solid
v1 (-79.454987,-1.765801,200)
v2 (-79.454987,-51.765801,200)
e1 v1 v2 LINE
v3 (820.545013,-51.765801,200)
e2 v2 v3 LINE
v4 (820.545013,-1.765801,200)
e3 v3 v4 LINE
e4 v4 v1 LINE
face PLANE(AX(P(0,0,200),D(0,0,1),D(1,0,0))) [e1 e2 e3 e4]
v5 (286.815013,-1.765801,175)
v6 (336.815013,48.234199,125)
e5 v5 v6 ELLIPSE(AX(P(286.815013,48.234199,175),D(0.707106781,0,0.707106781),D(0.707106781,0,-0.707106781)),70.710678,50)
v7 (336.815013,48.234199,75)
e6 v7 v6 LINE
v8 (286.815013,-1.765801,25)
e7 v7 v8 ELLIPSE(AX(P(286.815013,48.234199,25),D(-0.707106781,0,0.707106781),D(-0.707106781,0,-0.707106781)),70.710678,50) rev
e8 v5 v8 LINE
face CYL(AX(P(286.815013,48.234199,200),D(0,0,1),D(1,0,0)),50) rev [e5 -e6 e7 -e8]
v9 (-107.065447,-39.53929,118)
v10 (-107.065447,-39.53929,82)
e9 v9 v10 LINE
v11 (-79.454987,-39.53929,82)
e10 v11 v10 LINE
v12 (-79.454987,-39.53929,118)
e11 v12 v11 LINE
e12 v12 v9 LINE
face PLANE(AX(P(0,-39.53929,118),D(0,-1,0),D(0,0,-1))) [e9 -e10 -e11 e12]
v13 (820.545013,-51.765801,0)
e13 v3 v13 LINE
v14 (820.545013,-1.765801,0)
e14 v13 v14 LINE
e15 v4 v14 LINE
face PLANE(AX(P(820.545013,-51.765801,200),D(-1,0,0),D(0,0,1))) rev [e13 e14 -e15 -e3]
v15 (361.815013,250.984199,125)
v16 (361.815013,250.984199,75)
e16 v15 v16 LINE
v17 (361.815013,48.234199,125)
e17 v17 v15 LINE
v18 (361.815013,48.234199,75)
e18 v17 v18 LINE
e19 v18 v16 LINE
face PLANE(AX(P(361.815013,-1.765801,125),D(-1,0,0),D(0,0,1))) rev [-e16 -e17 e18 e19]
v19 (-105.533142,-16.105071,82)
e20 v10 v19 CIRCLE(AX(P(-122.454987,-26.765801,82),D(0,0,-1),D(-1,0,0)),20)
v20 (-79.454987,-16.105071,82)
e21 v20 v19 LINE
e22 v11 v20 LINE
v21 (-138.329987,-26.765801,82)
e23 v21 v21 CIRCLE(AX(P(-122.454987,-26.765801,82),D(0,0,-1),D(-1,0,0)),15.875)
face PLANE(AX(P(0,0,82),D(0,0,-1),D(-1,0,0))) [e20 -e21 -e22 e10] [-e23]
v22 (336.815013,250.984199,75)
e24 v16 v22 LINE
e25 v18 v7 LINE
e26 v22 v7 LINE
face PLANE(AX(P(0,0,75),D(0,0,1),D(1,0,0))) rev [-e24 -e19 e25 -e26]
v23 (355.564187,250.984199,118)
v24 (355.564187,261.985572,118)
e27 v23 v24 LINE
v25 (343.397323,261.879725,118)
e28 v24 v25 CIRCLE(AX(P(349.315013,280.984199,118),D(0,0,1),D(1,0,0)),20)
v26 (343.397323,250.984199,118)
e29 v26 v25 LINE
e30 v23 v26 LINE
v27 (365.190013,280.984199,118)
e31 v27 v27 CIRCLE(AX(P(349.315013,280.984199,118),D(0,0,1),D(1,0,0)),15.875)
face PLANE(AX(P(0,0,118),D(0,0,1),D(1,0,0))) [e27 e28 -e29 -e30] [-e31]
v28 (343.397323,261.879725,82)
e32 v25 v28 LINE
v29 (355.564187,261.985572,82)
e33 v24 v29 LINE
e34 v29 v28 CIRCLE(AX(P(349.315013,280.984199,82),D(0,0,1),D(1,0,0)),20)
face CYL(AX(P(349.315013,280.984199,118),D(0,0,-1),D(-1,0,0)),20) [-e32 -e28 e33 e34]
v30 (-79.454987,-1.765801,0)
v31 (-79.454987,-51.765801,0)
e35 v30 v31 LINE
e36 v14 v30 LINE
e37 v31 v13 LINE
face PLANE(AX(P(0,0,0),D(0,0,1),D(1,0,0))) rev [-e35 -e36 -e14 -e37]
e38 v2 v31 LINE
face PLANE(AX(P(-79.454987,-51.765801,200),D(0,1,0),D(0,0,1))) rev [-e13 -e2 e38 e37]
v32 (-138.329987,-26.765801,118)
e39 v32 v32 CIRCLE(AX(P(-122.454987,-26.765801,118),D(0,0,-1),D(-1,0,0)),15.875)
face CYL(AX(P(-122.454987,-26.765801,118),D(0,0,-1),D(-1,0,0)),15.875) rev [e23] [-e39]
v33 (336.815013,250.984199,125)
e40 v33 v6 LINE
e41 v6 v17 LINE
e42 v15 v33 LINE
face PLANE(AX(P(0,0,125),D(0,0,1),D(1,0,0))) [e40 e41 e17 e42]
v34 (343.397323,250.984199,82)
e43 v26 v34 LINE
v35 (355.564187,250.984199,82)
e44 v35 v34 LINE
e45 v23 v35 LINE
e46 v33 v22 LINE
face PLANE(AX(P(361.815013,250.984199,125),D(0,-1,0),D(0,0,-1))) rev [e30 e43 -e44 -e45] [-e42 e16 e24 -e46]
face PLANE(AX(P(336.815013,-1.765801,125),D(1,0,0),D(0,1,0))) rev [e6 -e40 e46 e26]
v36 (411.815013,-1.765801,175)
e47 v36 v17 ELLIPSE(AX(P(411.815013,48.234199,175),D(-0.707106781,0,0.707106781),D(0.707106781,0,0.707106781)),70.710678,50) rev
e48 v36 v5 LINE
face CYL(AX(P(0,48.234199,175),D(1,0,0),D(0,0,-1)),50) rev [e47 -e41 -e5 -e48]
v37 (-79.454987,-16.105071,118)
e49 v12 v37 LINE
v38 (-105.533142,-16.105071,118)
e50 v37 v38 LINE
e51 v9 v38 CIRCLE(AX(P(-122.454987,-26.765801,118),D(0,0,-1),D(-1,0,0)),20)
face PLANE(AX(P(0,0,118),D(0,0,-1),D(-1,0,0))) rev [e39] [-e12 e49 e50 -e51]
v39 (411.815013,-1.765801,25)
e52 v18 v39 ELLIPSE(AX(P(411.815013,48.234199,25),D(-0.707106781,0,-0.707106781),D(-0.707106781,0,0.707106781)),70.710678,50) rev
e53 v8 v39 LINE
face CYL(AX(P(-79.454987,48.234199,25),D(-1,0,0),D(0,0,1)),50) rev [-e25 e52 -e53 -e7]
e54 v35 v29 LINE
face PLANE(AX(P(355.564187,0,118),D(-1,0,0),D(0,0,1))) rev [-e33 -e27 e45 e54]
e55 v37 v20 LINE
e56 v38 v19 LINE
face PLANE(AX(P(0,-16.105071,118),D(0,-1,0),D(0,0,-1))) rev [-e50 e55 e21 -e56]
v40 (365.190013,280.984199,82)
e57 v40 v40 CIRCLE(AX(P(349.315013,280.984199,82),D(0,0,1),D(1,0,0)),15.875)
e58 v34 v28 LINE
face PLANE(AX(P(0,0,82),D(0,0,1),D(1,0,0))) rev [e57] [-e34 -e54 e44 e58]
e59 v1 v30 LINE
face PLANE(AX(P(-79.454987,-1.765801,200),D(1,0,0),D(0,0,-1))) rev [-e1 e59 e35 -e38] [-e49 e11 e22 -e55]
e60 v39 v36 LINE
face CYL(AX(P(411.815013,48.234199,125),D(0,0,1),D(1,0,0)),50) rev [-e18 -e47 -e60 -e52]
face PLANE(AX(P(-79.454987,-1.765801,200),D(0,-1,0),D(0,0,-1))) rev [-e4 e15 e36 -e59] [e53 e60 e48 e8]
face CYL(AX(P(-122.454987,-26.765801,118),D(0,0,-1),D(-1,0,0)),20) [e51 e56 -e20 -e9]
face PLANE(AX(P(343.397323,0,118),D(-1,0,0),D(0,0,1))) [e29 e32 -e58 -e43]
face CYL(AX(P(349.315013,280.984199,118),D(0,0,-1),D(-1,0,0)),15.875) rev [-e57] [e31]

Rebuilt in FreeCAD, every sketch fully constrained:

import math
import FreeCAD as App
import Part
import Sketcher
from FreeCAD import Vector
Q = App.Units.Quantity


def edges_at(feature, points):
    """Names of the edges that pass closest to the given points."""
    edges = feature.Shape.Edges
    near = lambda p: min(range(len(edges)), key=lambda i: edges[i].distToShape(Part.Vertex(*p))[0])
    return sorted({f"Edge{near(p) + 1}" for p in points})

doc = App.newDocument("Part")
params = doc.addObject("Spreadsheet::Sheet", "Params")
for row, (alias, value) in enumerate([
    ("sketch1_width", "900 mm"),
    ("sketch1_height", "50 mm"),
    ("pad1_length", "200 mm"),
    ("sketch2_radius", "20 mm"),
    ("sketch2_diameter", "31.75 mm"),
    ("pad2_length", "36 mm"),
    ("sketch3_width", "25 mm"),
    ("sketch3_height", "252.75 mm"),
    ("pad3_length", "50 mm"),
    ("fillet_radius", "50 mm"),
    ("sketch4_radius", "20 mm"),
    ("sketch4_diameter", "31.75 mm"),
    ("pad4_length", "36 mm"),
], start=1):
    params.set(f"A{row}", alias)
    params.set(f"B{row}", "=" + value)
    params.setAlias(f"B{row}", alias)

body = doc.addObject("PartDesign::Body", "Body")

# Sketch on XY plane
sketch1 = doc.addObject("Sketcher::SketchObject", "Sketch")
body.addObject(sketch1)
sketch1.AttachmentSupport = (doc.XY_Plane, [""])
sketch1.MapMode = "FlatFace"
sketch1.addGeometry(Part.LineSegment(Vector(-79.454987, -1.765801, 0), Vector(-79.454987, -51.765801, 0)), False)
sketch1.addGeometry(Part.LineSegment(Vector(-79.454987, -51.765801, 0), Vector(820.545013, -51.765801, 0)), False)
sketch1.addGeometry(Part.LineSegment(Vector(820.545013, -51.765801, 0), Vector(820.545013, -1.765801, 0)), False)
sketch1.addGeometry(Part.LineSegment(Vector(820.545013, -1.765801, 0), Vector(-79.454987, -1.765801, 0)), False)
sketch1.addConstraint(Sketcher.Constraint("Coincident", 0, 2, 1, 1))
sketch1.addConstraint(Sketcher.Constraint("Coincident", 1, 2, 2, 1))
sketch1.addConstraint(Sketcher.Constraint("Coincident", 2, 2, 3, 1))
sketch1.addConstraint(Sketcher.Constraint("Coincident", 3, 2, 0, 1))
sketch1.addConstraint(Sketcher.Constraint("Vertical", 0))
sketch1.addConstraint(Sketcher.Constraint("Horizontal", 1))
sketch1.addConstraint(Sketcher.Constraint("Vertical", 2))
sketch1.addConstraint(Sketcher.Constraint("Horizontal", 3))
sketch1.addConstraint(Sketcher.Constraint("DistanceX", 1, 1, 1, 2, Q("900 mm")))
sketch1.addConstraint(Sketcher.Constraint("DistanceY", 0, 2, 0, 1, Q("50 mm")))
sketch1.addConstraint(Sketcher.Constraint("DistanceY", 0, 2, -1, 1, Q("51.765801 mm")))
sketch1.addConstraint(Sketcher.Constraint("DistanceX", 0, 2, -1, 1, Q("79.454987 mm")))
sketch1.setExpression("Constraints[8]", "Params.sketch1_width")
sketch1.setExpression("Constraints[9]", "Params.sketch1_height")
pad1 = doc.addObject("PartDesign::Pad", "Pad")
body.addObject(pad1)
pad1.Profile = sketch1
pad1.setExpression("Length", "Params.pad1_length")

# Sketch on XY plane
sketch2 = doc.addObject("Sketcher::SketchObject", "Sketch001")
body.addObject(sketch2)
sketch2.AttachmentSupport = (doc.XY_Plane, [""])
sketch2.MapMode = "FlatFace"
sketch2.AttachmentOffset = App.Placement(Vector(0, 0, 82), App.Rotation())
sketch2.addGeometry(Part.LineSegment(Vector(-79.454987, -16.105071, 0), Vector(-79.454987, -39.53929, 0)), False)
sketch2.addGeometry(Part.LineSegment(Vector(-79.454987, -39.53929, 0), Vector(-107.065447, -39.53929, 0)), False)
sketch2.addGeometry(Part.ArcOfCircle(Part.Circle(Vector(-122.454987, -26.765801, 0), Vector(0, 0, 1), 20), math.radians(32.210848), math.radians(320.306951)), False)
sketch2.addGeometry(Part.LineSegment(Vector(-105.533142, -16.105071, 0), Vector(-79.454987, -16.105071, 0)), False)
sketch2.addGeometry(Part.Circle(Vector(-122.454987, -26.765801, 0), Vector(0, 0, 1), 15.875), False)
sketch2.addConstraint(Sketcher.Constraint("Coincident", 0, 2, 1, 1))
sketch2.addConstraint(Sketcher.Constraint("Coincident", 1, 2, 2, 2))
sketch2.addConstraint(Sketcher.Constraint("Coincident", 2, 1, 3, 1))
sketch2.addConstraint(Sketcher.Constraint("Coincident", 3, 2, 0, 1))
sketch2.addConstraint(Sketcher.Constraint("Vertical", 0))
sketch2.addConstraint(Sketcher.Constraint("Horizontal", 1))
sketch2.addConstraint(Sketcher.Constraint("Horizontal", 3))
sketch2.addConstraint(Sketcher.Constraint("Coincident", 4, 3, 2, 3))
sketch2.addConstraint(Sketcher.Constraint("Radius", 2, Q("20 mm")))
sketch2.addConstraint(Sketcher.Constraint("Diameter", 4, Q("31.75 mm")))
sketch2.addConstraint(Sketcher.Constraint("DistanceX", 2, 3, 0, 2, Q("43 mm")))
sketch2.addConstraint(Sketcher.Constraint("DistanceX", 1, 2, 1, 1, Q("27.610459 mm")))
sketch2.addConstraint(Sketcher.Constraint("DistanceY", 0, 2, 0, 1, Q("23.434219 mm")))
sketch2.addConstraint(Sketcher.Constraint("DistanceY", 2, 3, -1, 1, Q("26.765801 mm")))
sketch2.addConstraint(Sketcher.Constraint("DistanceX", 2, 3, -1, 1, Q("122.454987 mm")))
sketch2.setExpression("Constraints[8]", "Params.sketch2_radius")
sketch2.setExpression("Constraints[9]", "Params.sketch2_diameter")
pad2 = doc.addObject("PartDesign::Pad", "Pad001")
body.addObject(pad2)
pad2.Profile = sketch2
pad2.setExpression("Length", "Params.pad2_length")

# Sketch on XY plane
sketch3 = doc.addObject("Sketcher::SketchObject", "Sketch002")
body.addObject(sketch3)
sketch3.AttachmentSupport = (doc.XY_Plane, [""])
sketch3.MapMode = "FlatFace"
sketch3.AttachmentOffset = App.Placement(Vector(0, 0, 100), App.Rotation())
sketch3.addGeometry(Part.LineSegment(Vector(336.815013, 250.984199, 0), Vector(336.815013, -1.765801, 0)), False)
sketch3.addGeometry(Part.LineSegment(Vector(336.815013, -1.765801, 0), Vector(361.815013, -1.765801, 0)), False)
sketch3.addGeometry(Part.LineSegment(Vector(361.815013, -1.765801, 0), Vector(361.815013, 250.984199, 0)), False)
sketch3.addGeometry(Part.LineSegment(Vector(361.815013, 250.984199, 0), Vector(336.815013, 250.984199, 0)), False)
sketch3.addConstraint(Sketcher.Constraint("Coincident", 0, 2, 1, 1))
sketch3.addConstraint(Sketcher.Constraint("Coincident", 1, 2, 2, 1))
sketch3.addConstraint(Sketcher.Constraint("Coincident", 2, 2, 3, 1))
sketch3.addConstraint(Sketcher.Constraint("Coincident", 3, 2, 0, 1))
sketch3.addConstraint(Sketcher.Constraint("Vertical", 0))
sketch3.addConstraint(Sketcher.Constraint("Horizontal", 1))
sketch3.addConstraint(Sketcher.Constraint("Vertical", 2))
sketch3.addConstraint(Sketcher.Constraint("Horizontal", 3))
sketch3.addConstraint(Sketcher.Constraint("DistanceX", 1, 1, 1, 2, Q("25 mm")))
sketch3.addConstraint(Sketcher.Constraint("DistanceY", 0, 2, 0, 1, Q("252.75 mm")))
sketch3.addConstraint(Sketcher.Constraint("DistanceY", 0, 2, -1, 1, Q("1.765801 mm")))
sketch3.addConstraint(Sketcher.Constraint("DistanceX", -1, 1, 0, 2, Q("336.815013 mm")))
sketch3.setExpression("Constraints[8]", "Params.sketch3_width")
sketch3.setExpression("Constraints[9]", "Params.sketch3_height")
pad3 = doc.addObject("PartDesign::Pad", "Pad002")
body.addObject(pad3)
pad3.Profile = sketch3
pad3.setExpression("Length", "Params.pad3_length")
pad3.Midplane = True
doc.recompute()

fillet = doc.addObject("PartDesign::Fillet", "Fillet")
body.addObject(fillet)
fillet.Base = (pad3, edges_at(pad3, [
    (349.315, -1.766, 75),
    (336.815, -1.766, 100),
    (361.815, -1.766, 100),
    (349.315, -1.766, 125),
]))
fillet.setExpression("Radius", "Params.fillet_radius")

# Sketch on XY plane
sketch4 = doc.addObject("Sketcher::SketchObject", "Sketch003")
body.addObject(sketch4)
sketch4.AttachmentSupport = (doc.XY_Plane, [""])
sketch4.MapMode = "FlatFace"
sketch4.AttachmentOffset = App.Placement(Vector(0, 0, 100), App.Rotation())
sketch4.addGeometry(Part.LineSegment(Vector(343.397323, 250.984199, 0), Vector(355.564187, 250.984199, 0)), False)
sketch4.addGeometry(Part.LineSegment(Vector(355.564187, 250.984199, 0), Vector(355.564187, 261.985572, 0)), False)
sketch4.addGeometry(Part.ArcOfCircle(Part.Circle(Vector(349.315013, 280.984199, 0), Vector(0, 0, 1), 20), math.radians(-71.792533), math.radians(252.789417)), False)
sketch4.addGeometry(Part.LineSegment(Vector(343.397323, 261.879725, 0), Vector(343.397323, 250.984199, 0)), False)
sketch4.addGeometry(Part.Circle(Vector(349.315013, 280.984199, 0), Vector(0, 0, 1), 15.875), False)
sketch4.addConstraint(Sketcher.Constraint("Coincident", 0, 2, 1, 1))
sketch4.addConstraint(Sketcher.Constraint("Coincident", 1, 2, 2, 1))
sketch4.addConstraint(Sketcher.Constraint("Coincident", 2, 2, 3, 1))
sketch4.addConstraint(Sketcher.Constraint("Coincident", 3, 2, 0, 1))
sketch4.addConstraint(Sketcher.Constraint("Horizontal", 0))
sketch4.addConstraint(Sketcher.Constraint("Vertical", 1))
sketch4.addConstraint(Sketcher.Constraint("Vertical", 3))
sketch4.addConstraint(Sketcher.Constraint("Coincident", 4, 3, 2, 3))
sketch4.addConstraint(Sketcher.Constraint("Radius", 2, Q("20 mm")))
sketch4.addConstraint(Sketcher.Constraint("Diameter", 4, Q("31.75 mm")))
sketch4.addConstraint(Sketcher.Constraint("DistanceY", 0, 2, 2, 3, Q("30 mm")))
sketch4.addConstraint(Sketcher.Constraint("DistanceY", -1, 1, 2, 3, Q("280.984199 mm")))
sketch4.addConstraint(Sketcher.Constraint("DistanceX", 0, 1, 0, 2, Q("12.166864 mm")))
sketch4.addConstraint(Sketcher.Constraint("DistanceY", 1, 1, 1, 2, Q("11.001373 mm")))
sketch4.addConstraint(Sketcher.Constraint("DistanceX", -1, 1, 2, 3, Q("349.315013 mm")))
sketch4.setExpression("Constraints[8]", "Params.sketch4_radius")
sketch4.setExpression("Constraints[9]", "Params.sketch4_diameter")
pad4 = doc.addObject("PartDesign::Pad", "Pad003")
body.addObject(pad4)
pad4.Profile = sketch4
pad4.setExpression("Length", "Params.pad4_length")
pad4.Midplane = True

doc.recompute()
